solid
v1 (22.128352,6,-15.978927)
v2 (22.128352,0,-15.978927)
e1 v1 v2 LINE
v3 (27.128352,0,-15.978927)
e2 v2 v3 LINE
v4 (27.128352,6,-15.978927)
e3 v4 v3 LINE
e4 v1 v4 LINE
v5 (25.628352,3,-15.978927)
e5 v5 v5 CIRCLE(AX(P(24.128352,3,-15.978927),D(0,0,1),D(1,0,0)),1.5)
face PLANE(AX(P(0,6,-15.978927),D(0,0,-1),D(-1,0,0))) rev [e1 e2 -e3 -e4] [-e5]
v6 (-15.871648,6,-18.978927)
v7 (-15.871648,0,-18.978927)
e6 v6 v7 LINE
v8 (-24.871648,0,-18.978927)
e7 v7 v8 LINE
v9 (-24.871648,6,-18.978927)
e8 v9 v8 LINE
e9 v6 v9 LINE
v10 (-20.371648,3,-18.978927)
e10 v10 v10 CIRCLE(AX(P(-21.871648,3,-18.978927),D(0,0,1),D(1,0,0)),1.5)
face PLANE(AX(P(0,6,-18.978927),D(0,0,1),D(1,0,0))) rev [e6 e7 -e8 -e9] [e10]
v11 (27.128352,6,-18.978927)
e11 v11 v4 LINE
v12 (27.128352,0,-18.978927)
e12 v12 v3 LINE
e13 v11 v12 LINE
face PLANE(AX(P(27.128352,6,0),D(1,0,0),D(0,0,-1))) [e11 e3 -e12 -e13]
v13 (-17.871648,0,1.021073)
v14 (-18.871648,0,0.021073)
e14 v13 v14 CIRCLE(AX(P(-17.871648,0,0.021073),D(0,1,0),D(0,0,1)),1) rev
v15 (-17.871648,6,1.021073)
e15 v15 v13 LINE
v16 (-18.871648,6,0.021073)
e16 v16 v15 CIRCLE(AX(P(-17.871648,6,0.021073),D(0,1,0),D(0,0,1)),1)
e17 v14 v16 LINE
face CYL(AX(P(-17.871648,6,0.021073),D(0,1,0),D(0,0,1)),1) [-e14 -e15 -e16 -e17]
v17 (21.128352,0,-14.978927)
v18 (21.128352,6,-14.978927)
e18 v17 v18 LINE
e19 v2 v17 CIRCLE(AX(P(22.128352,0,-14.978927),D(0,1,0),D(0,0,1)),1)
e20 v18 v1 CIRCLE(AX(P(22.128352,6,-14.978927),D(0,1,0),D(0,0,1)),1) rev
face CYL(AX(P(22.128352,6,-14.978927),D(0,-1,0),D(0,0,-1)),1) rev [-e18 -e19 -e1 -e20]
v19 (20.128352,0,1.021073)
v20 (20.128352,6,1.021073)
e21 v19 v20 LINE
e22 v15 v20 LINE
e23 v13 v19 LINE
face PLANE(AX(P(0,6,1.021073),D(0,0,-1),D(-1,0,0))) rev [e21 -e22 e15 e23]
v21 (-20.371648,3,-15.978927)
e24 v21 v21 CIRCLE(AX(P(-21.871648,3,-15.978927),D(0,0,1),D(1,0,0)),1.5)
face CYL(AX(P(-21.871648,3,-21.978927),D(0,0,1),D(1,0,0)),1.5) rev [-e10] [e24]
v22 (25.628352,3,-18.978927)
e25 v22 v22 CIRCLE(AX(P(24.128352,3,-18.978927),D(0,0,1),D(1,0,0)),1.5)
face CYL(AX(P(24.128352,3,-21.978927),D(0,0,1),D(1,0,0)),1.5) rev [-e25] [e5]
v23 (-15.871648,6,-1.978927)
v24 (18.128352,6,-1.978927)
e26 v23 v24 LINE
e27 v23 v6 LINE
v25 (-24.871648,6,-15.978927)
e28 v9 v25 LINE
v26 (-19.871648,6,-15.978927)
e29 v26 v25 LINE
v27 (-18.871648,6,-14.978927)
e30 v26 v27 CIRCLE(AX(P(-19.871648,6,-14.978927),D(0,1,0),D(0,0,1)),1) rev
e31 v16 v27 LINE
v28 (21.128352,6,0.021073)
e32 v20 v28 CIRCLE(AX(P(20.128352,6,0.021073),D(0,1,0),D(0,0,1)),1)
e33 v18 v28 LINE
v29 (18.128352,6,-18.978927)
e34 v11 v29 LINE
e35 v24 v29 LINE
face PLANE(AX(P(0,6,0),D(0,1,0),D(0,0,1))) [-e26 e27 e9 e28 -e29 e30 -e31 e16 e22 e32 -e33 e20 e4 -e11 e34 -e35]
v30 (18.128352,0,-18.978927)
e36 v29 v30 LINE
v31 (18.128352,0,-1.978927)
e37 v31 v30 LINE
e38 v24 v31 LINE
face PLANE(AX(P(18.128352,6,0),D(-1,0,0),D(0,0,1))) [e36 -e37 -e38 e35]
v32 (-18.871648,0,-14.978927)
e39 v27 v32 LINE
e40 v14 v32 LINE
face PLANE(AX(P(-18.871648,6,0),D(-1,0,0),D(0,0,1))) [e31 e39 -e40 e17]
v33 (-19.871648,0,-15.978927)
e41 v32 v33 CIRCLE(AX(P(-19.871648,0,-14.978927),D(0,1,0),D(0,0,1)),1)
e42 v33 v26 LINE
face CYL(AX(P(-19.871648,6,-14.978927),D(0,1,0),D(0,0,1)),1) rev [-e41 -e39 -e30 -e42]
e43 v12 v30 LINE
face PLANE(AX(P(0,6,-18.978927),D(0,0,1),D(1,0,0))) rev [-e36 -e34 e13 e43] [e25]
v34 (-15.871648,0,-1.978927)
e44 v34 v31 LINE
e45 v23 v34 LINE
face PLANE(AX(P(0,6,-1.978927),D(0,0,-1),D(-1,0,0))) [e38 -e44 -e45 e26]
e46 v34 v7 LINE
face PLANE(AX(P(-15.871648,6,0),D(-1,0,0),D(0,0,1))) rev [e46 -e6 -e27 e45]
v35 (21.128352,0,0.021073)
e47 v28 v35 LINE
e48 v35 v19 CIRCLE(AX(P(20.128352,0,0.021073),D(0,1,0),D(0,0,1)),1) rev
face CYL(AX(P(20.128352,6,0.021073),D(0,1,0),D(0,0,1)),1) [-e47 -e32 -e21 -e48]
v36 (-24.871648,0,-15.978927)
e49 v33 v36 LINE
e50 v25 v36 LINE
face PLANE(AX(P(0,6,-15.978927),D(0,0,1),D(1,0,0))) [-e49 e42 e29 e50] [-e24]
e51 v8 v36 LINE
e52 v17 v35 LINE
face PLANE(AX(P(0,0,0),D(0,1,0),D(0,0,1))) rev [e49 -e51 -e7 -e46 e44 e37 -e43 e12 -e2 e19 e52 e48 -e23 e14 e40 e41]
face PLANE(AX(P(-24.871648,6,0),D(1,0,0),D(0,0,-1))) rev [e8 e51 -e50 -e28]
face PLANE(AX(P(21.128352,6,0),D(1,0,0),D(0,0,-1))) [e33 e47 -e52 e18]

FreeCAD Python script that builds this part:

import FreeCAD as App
import Part
import Sketcher
from FreeCAD import Vector


def edges_at(feature, points):
    """Names of the edges that pass closest to the given points."""
    edges = feature.Shape.Edges
    near = lambda p: min(range(len(edges)), key=lambda i: edges[i].distToShape(Part.Vertex(*p))[0])
    return sorted({f"Edge{near(p) + 1}" for p in points})

doc = App.newDocument("Part")
params = doc.addObject("Spreadsheet::Sheet", "Params")
for row, (alias, value) in enumerate([
    ("sketch1_width", "6 mm"),
    ("sketch1_width2", "40 mm"),
    ("sketch1_width3", "9 mm"),
    ("sketch1_height", "3 mm"),
    ("sketch1_height2", "17 mm"),
    ("pad1_length", "6 mm"),
    ("sketch2_diameter", "3 mm"),
    ("pocket1_length", "6 mm"),
    ("fillet_radius", "1 mm"),
    ("fillet2_radius", "1 mm"),
    ("fillet3_radius", "1 mm"),
    ("fillet4_radius", "1 mm"),
], start=1):
    params.set(f"A{row}", alias)
    params.set(f"B{row}", "=" + value)
    params.setAlias(f"B{row}", alias)

body = doc.addObject("PartDesign::Body", "Body")

# Sketch on XZ plane
sketch1 = body.newObject("Sketcher::SketchObject", "Sketch")
sketch1.AttachmentSupport = (doc.getObject("XZ_Plane"), [""])
sketch1.MapMode = "FlatFace"
sketch1.addGeometry(Part.LineSegment(Vector(-24.871648, -18.978927, 0), Vector(-24.871648, -15.978927, 0)), False)
sketch1.addGeometry(Part.LineSegment(Vector(-24.871648, -15.978927, 0), Vector(-18.871648, -15.978927, 0)), False)
sketch1.addGeometry(Part.LineSegment(Vector(-18.871648, -15.978927, 0), Vector(-18.871648, 1.021073, 0)), False)
sketch1.addGeometry(Part.LineSegment(Vector(-18.871648, 1.021073, 0), Vector(21.128352, 1.021073, 0)), False)
sketch1.addGeometry(Part.LineSegment(Vector(21.128352, 1.021073, 0), Vector(21.128352, -15.978927, 0)), False)
sketch1.addGeometry(Part.LineSegment(Vector(21.128352, -15.978927, 0), Vector(27.128352, -15.978927, 0)), False)
sketch1.addGeometry(Part.LineSegment(Vector(27.128352, -15.978927, 0), Vector(27.128352, -18.978927, 0)), False)
sketch1.addGeometry(Part.LineSegment(Vector(27.128352, -18.978927, 0), Vector(18.128352, -18.978927, 0)), False)
sketch1.addGeometry(Part.LineSegment(Vector(18.128352, -18.978927, 0), Vector(18.128352, -1.978927, 0)), False)
sketch1.addGeometry(Part.LineSegment(Vector(18.128352, -1.978927, 0), Vector(-15.871648, -1.978927, 0)), False)
sketch1.addGeometry(Part.LineSegment(Vector(-15.871648, -1.978927, 0), Vector(-15.871648, -18.978927, 0)), False)
sketch1.addGeometry(Part.LineSegment(Vector(-15.871648, -18.978927, 0), Vector(-24.871648, -18.978927, 0)), False)
sketch1.addConstraint(Sketcher.Constraint("Coincident", 0, 2, 1, 1))
sketch1.addConstraint(Sketcher.Constraint("Coincident", 1, 2, 2, 1))
sketch1.addConstraint(Sketcher.Constraint("Coincident", 2, 2, 3, 1))
sketch1.addConstraint(Sketcher.Constraint("Coincident", 3, 2, 4, 1))
sketch1.addConstraint(Sketcher.Constraint("Coincident", 4, 2, 5, 1))
sketch1.addConstraint(Sketcher.Constraint("Coincident", 5, 2, 6, 1))
sketch1.addConstraint(Sketcher.Constraint("Coincident", 6, 2, 7, 1))
sketch1.addConstraint(Sketcher.Constraint("Coincident", 7, 2, 8, 1))
sketch1.addConstraint(Sketcher.Constraint("Coincident", 8, 2, 9, 1))
sketch1.addConstraint(Sketcher.Constraint("Coincident", 9, 2, 10, 1))
sketch1.addConstraint(Sketcher.Constraint("Coincident", 10, 2, 11, 1))
sketch1.addConstraint(Sketcher.Constraint("Coincident", 11, 2, 0, 1))
sketch1.addConstraint(Sketcher.Constraint("Vertical", 0))
sketch1.addConstraint(Sketcher.Constraint("Horizontal", 1))
sketch1.addConstraint(Sketcher.Constraint("Vertical", 2))
sketch1.addConstraint(Sketcher.Constraint("Horizontal", 3))
sketch1.addConstraint(Sketcher.Constraint("Vertical", 4))
sketch1.addConstraint(Sketcher.Constraint("Horizontal", 5))
sketch1.addConstraint(Sketcher.Constraint("Vertical", 6))
sketch1.addConstraint(Sketcher.Constraint("Horizontal", 7))
sketch1.addConstraint(Sketcher.Constraint("Vertical", 8))
sketch1.addConstraint(Sketcher.Constraint("Horizontal", 9))
sketch1.addConstraint(Sketcher.Constraint("Vertical", 10))
sketch1.addConstraint(Sketcher.Constraint("Horizontal", 11))
sketch1.addConstraint(Sketcher.Constraint("Horizontal", 1, 2, 4, 2))
sketch1.addConstraint(Sketcher.Constraint("Horizontal", 7, 2, 10, 2))
sketch1.addConstraint(Sketcher.Constraint("Equal", 1, 5))
sketch1.addConstraint(Sketcher.Constraint("Equal", 7, 11))
sketch1.addConstraint(Sketcher.Constraint("Equal", 4, 8))
sketch1.addConstraint(Sketcher.Constraint("DistanceX", 1, 1, 1, 2, 6.0))
sketch1.addConstraint(Sketcher.Constraint("DistanceX", 3, 1, 3, 2, 40.0))
sketch1.addConstraint(Sketcher.Constraint("DistanceX", 7, 2, 7, 1, 9.0))
sketch1.addConstraint(Sketcher.Constraint("DistanceY", 0, 1, 0, 2, 3.0))
sketch1.addConstraint(Sketcher.Constraint("DistanceY", 2, 1, 2, 2, 17.0))
sketch1.addConstraint(Sketcher.Constraint("DistanceX", 0, 2, -1, 1, 24.871648))
sketch1.addConstraint(Sketcher.Constraint("DistanceY", 0, 2, -1, 1, 15.978927))
sketch1.setExpression("Constraints[29]", "Params.sketch1_width")
sketch1.setExpression("Constraints[30]", "Params.sketch1_width2")
sketch1.setExpression("Constraints[31]", "Params.sketch1_width3")
sketch1.setExpression("Constraints[32]", "Params.sketch1_height")
sketch1.setExpression("Constraints[33]", "Params.sketch1_height2")
pad1 = body.newObject("PartDesign::Pad", "Pad")
pad1.Profile = sketch1
pad1.setExpression("Length", "Params.pad1_length")
pad1.Reversed = True

# Sketch on XY plane
sketch2 = body.newObject("Sketcher::SketchObject", "Sketch001")
sketch2.AttachmentSupport = (doc.getObject("XY_Plane"), [""])
sketch2.MapMode = "FlatFace"
sketch2.AttachmentOffset = App.Placement(Vector(0, 0, -15.978927), App.Rotation())
sketch2.addGeometry(Part.Circle(Vector(-21.871648, 3, 0), Vector(0, 0, 1), 1.5), False)
sketch2.addGeometry(Part.Circle(Vector(24.128352, 3, 0), Vector(0, 0, 1), 1.5), False)
sketch2.addConstraint(Sketcher.Constraint("Equal", 0, 1))
sketch2.addConstraint(Sketcher.Constraint("Horizontal", 0, 3, 1, 3))
sketch2.addConstraint(Sketcher.Constraint("Diameter", 0, 3.0))
sketch2.addConstraint(Sketcher.Constraint("DistanceY", -1, 1, 0, 3, 3.0))
sketch2.addConstraint(Sketcher.Constraint("DistanceX", 0, 3, 1, 3, 46.0))
sketch2.addConstraint(Sketcher.Constraint("DistanceX", 0, 3, -1, 1, 21.871648))
sketch2.setExpression("Constraints[2]", "Params.sketch2_diameter")
pocket1 = body.newObject("PartDesign::Pocket", "Pocket")
pocket1.Profile = sketch2
pocket1.setExpression("Length", "Params.pocket1_length")
doc.recompute()

fillet = body.newObject("PartDesign::Fillet", "Fillet")
fillet.Base = (pocket1, edges_at(pocket1, [(-18.872, 3, -15.979)]))
fillet.setExpression("Radius", "Params.fillet_radius")
doc.recompute()

fillet2 = body.newObject("PartDesign::Fillet", "Fillet001")
fillet2.Base = (fillet, edges_at(fillet, [(21.128, 3, -15.979)]))
fillet2.setExpression("Radius", "Params.fillet2_radius")
doc.recompute()

fillet3 = body.newObject("PartDesign::Fillet", "Fillet002")
fillet3.Base = (fillet2, edges_at(fillet2, [(21.128, 3, 1.021)]))
fillet3.setExpression("Radius", "Params.fillet3_radius")
doc.recompute()

fillet4 = body.newObject("PartDesign::Fillet", "Fillet003")
fillet4.Base = (fillet3, edges_at(fillet3, [(-18.872, 3, 1.021)]))
fillet4.setExpression("Radius", "Params.fillet4_radius")

doc.recompute()
